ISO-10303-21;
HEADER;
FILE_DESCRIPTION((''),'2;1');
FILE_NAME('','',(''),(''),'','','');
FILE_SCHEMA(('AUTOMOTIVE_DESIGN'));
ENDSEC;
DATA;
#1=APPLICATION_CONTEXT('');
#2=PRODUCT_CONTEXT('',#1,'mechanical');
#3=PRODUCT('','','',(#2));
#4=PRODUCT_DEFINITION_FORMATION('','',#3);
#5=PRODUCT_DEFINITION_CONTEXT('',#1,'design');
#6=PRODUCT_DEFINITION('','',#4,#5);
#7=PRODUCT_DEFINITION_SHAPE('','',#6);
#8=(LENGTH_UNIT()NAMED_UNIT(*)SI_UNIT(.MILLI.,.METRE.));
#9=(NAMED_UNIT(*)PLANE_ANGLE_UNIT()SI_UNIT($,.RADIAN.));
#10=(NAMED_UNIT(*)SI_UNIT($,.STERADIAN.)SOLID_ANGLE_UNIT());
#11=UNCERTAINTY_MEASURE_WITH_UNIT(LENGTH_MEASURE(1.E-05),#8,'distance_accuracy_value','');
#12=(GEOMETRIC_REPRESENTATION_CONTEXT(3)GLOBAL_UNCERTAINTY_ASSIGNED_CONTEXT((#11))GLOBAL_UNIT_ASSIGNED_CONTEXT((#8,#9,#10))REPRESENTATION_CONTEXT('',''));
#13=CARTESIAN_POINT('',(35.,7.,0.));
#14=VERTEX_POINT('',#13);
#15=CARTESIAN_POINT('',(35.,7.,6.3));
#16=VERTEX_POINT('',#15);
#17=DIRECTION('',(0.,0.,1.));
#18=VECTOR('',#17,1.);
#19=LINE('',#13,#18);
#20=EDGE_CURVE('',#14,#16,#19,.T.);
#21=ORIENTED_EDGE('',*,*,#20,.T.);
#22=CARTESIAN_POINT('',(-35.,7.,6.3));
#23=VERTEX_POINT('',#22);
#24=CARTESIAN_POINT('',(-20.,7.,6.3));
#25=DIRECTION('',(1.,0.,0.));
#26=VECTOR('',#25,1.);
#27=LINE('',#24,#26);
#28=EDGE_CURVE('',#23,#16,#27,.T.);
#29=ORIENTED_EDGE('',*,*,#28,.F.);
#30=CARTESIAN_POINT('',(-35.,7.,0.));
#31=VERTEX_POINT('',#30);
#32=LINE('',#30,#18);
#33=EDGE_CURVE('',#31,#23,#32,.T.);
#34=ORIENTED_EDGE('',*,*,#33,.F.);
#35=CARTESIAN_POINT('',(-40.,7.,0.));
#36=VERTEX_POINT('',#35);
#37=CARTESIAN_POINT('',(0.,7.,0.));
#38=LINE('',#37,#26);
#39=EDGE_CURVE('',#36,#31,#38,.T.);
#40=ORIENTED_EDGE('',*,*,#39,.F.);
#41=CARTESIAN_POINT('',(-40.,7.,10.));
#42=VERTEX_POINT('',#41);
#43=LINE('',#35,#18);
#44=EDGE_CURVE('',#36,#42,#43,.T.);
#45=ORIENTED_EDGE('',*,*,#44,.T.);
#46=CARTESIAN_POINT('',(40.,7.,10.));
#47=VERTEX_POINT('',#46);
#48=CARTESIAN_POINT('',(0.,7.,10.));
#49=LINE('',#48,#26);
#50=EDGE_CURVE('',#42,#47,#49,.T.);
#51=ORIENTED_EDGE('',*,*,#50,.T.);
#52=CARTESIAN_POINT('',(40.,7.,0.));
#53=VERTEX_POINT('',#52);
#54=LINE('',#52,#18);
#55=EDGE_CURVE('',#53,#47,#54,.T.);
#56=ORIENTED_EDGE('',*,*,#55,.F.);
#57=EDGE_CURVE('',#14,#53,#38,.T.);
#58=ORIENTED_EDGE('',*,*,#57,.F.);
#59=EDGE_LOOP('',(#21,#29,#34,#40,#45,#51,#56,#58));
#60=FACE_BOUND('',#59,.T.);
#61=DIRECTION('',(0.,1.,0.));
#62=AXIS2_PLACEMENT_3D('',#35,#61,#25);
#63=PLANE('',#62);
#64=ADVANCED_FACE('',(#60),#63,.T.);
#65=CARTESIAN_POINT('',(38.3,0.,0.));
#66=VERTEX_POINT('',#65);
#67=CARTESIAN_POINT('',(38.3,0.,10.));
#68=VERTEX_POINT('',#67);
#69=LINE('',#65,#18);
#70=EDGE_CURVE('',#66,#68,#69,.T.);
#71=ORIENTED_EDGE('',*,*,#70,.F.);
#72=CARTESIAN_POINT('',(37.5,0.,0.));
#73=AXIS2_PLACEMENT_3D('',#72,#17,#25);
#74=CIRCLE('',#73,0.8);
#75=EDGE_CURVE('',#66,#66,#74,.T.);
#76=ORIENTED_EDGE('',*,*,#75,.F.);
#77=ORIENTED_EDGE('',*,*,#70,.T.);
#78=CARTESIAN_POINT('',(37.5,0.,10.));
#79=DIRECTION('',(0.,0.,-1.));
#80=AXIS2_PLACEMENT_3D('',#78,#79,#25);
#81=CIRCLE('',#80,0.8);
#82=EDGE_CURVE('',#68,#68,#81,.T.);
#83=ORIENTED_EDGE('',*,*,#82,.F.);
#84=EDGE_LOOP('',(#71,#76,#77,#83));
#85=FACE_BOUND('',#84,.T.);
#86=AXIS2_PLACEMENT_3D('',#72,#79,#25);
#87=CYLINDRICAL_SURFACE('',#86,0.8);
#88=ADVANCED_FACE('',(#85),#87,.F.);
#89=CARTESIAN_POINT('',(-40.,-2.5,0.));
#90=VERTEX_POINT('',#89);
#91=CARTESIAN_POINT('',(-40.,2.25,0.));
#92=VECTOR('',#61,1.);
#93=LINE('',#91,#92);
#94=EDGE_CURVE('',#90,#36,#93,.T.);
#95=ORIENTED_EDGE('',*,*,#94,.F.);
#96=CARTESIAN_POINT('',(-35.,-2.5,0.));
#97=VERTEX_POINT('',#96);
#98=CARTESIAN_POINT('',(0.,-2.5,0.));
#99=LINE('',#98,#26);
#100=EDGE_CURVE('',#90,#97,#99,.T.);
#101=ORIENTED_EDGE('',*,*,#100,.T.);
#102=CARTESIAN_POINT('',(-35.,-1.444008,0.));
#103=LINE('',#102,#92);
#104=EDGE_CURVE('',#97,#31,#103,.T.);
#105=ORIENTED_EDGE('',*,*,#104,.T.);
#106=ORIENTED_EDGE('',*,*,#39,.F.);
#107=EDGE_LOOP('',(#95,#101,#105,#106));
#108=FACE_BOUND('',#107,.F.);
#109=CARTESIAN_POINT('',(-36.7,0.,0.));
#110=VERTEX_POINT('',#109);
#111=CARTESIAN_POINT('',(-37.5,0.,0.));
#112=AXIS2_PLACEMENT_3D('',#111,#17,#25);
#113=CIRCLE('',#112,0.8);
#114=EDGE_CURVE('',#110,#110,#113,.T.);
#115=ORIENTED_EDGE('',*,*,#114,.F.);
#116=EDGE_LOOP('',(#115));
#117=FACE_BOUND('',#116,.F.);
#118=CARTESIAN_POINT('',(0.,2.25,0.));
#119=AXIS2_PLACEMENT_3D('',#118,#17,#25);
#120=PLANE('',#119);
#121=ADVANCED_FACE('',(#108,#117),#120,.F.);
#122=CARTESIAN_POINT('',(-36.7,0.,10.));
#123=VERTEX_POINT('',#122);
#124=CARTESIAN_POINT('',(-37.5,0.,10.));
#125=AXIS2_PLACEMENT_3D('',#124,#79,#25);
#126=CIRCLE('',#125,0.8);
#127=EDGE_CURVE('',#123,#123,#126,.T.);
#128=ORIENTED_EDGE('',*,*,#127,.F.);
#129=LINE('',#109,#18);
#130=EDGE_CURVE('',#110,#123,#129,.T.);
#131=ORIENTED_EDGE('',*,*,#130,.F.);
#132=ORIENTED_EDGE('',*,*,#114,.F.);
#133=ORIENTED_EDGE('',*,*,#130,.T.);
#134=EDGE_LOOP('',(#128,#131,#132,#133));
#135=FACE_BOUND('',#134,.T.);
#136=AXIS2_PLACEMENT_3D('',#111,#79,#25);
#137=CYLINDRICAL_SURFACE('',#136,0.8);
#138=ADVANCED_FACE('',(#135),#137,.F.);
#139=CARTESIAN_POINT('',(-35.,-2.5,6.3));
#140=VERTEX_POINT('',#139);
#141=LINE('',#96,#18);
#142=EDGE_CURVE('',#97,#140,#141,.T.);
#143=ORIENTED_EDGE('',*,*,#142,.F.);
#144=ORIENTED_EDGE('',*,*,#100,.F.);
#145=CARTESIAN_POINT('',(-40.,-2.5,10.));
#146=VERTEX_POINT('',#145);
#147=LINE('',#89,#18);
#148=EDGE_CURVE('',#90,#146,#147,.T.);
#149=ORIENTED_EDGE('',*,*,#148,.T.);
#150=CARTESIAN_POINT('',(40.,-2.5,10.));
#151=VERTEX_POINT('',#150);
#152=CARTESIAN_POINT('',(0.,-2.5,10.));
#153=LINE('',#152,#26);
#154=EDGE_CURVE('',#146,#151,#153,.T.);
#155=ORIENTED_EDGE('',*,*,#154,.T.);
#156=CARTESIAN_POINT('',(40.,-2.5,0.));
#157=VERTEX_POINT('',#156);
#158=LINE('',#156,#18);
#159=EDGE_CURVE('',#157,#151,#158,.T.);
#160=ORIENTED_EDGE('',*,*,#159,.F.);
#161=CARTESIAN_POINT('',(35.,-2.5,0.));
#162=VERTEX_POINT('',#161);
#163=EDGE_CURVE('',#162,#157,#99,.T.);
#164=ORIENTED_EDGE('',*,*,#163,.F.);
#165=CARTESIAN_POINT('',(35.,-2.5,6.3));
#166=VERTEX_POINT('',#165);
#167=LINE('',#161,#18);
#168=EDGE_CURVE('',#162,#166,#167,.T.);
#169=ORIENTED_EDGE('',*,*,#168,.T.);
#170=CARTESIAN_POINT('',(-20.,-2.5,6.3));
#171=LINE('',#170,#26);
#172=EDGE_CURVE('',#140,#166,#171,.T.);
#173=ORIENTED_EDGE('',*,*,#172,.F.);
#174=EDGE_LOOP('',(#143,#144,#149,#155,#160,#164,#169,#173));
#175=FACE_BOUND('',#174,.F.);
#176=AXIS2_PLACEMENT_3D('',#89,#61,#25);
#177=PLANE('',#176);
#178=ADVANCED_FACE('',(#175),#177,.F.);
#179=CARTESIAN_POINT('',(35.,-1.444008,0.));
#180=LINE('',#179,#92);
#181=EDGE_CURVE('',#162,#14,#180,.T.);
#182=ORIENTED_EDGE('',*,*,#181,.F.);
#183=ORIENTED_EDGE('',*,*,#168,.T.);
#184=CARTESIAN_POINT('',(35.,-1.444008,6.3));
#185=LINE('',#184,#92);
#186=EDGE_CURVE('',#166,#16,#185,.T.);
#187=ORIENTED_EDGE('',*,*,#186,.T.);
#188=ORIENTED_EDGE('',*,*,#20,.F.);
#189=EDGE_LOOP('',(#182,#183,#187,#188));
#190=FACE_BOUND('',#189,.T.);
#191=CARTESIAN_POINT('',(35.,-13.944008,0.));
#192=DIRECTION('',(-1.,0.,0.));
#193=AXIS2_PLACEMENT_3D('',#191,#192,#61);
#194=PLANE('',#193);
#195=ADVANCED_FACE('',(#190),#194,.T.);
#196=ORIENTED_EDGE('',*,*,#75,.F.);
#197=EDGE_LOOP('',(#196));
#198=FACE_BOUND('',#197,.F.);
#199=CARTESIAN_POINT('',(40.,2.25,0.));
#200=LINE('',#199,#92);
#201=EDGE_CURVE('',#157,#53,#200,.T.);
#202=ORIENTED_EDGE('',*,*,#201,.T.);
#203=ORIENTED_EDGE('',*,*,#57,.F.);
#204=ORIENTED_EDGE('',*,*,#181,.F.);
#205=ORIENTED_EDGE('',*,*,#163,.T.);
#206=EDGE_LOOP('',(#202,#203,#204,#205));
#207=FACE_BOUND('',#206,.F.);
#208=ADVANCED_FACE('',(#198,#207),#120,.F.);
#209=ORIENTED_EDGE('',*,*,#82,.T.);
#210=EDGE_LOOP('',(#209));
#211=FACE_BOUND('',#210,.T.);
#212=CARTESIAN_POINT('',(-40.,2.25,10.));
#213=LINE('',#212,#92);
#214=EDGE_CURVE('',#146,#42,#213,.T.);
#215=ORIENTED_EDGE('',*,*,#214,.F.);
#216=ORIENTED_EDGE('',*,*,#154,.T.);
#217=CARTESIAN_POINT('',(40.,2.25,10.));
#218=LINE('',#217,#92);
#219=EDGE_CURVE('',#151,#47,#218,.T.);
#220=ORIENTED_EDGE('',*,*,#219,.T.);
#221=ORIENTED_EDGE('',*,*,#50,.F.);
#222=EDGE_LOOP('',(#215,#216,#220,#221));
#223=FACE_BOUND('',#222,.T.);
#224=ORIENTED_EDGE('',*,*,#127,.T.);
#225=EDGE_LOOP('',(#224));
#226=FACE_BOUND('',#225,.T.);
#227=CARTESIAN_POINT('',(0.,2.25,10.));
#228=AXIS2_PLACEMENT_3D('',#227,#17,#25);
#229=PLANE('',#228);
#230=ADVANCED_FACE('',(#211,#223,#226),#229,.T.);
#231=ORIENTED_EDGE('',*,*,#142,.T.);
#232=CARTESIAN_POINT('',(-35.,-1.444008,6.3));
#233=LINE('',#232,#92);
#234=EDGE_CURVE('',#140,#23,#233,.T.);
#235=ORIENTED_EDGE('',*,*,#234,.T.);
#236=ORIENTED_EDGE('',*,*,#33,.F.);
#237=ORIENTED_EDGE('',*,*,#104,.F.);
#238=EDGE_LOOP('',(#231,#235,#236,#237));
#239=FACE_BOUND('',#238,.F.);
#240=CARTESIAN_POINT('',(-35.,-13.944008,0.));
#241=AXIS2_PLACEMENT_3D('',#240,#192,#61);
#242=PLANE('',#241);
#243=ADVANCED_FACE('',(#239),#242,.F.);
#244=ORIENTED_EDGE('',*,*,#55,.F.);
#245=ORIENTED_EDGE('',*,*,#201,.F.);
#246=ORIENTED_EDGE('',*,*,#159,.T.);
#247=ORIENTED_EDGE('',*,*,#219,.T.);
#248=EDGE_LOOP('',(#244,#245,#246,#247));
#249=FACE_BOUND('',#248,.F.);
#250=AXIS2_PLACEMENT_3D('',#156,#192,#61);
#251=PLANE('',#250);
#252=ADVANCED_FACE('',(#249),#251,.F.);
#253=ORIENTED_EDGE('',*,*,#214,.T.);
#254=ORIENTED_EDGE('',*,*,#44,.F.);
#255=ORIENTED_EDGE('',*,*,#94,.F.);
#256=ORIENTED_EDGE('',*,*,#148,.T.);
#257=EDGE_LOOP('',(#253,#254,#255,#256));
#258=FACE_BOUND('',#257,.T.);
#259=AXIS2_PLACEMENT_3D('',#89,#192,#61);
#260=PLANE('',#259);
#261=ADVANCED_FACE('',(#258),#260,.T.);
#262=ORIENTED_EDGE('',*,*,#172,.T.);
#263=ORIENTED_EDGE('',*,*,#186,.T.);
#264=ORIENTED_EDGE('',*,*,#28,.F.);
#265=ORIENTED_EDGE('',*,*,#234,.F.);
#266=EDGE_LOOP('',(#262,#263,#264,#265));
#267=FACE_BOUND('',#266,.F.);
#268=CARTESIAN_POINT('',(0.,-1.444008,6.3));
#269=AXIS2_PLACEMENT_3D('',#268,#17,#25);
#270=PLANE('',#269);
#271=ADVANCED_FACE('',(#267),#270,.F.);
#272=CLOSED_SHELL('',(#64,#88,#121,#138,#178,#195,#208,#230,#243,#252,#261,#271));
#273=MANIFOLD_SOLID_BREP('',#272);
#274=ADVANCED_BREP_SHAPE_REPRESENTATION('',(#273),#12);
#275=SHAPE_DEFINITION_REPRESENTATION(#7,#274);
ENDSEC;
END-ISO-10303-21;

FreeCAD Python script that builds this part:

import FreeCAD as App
import Part
import Sketcher

doc = App.newDocument("Part")
body = doc.addObject("PartDesign::Body", "Body")

sketch1 = body.newObject("Sketcher::SketchObject", "Sketch")
sketch1.AttachmentSupport = (doc.getObject("XY_Plane"), [""])
sketch1.MapMode = "FlatFace"
sketch1.addGeometry(Part.LineSegment(App.Vector(-40, 7, 0), App.Vector(-40, -2, 0)), False)
sketch1.addGeometry(Part.LineSegment(App.Vector(-40, -2, 0), App.Vector(40, -2, 0)), False)
sketch1.addGeometry(Part.LineSegment(App.Vector(40, -2, 0), App.Vector(40, 7, 0)), False)
sketch1.addGeometry(Part.LineSegment(App.Vector(40, 7, 0), App.Vector(-40, 7, 0)), False)
sketch1.addConstraint(Sketcher.Constraint("Coincident", 0, 2, 1, 1))
sketch1.addConstraint(Sketcher.Constraint("Coincident", 1, 2, 2, 1))
sketch1.addConstraint(Sketcher.Constraint("Coincident", 2, 2, 3, 1))
sketch1.addConstraint(Sketcher.Constraint("Coincident", 3, 2, 0, 1))
sketch1.addConstraint(Sketcher.Constraint("Vertical", 0))
sketch1.addConstraint(Sketcher.Constraint("Horizontal", 1))
sketch1.addConstraint(Sketcher.Constraint("Vertical", 2))
sketch1.addConstraint(Sketcher.Constraint("Horizontal", 3))
sketch1.addConstraint(Sketcher.Constraint("DistanceX", 1, 1, 1, 2, 80.0))
sketch1.addConstraint(Sketcher.Constraint("DistanceY", 0, 2, 0, 1, 9.5))
sketch1.addConstraint(Sketcher.Constraint("DistanceX", 0, 2, -1, 1, 40.0))
sketch1.addConstraint(Sketcher.Constraint("DistanceY", -1, 1, 2, 2, 7.0))
pad1 = body.newObject("PartDesign::Pad", "Pad")
pad1.Profile = sketch1
pad1.Length = 10

sketch2 = body.newObject("Sketcher::SketchObject", "Sketch001")
sketch2.AttachmentSupport = (doc.getObject("XY_Plane"), [""])
sketch2.MapMode = "FlatFace"
sketch2.addGeometry(Part.LineSegment(App.Vector(-35, 11, 0), App.Vector(-35, -14, 0)), False)
sketch2.addGeometry(Part.LineSegment(App.Vector(-35, -14, 0), App.Vector(35, -14, 0)), False)
sketch2.addGeometry(Part.LineSegment(App.Vector(35, -14, 0), App.Vector(35, 11, 0)), False)
sketch2.addGeometry(Part.LineSegment(App.Vector(35, 11, 0), App.Vector(-35, 11, 0)), False)
sketch2.addConstraint(Sketcher.Constraint("Coincident", 0, 2, 1, 1))
sketch2.addConstraint(Sketcher.Constraint("Coincident", 1, 2, 2, 1))
sketch2.addConstraint(Sketcher.Constraint("Coincident", 2, 2, 3, 1))
sketch2.addConstraint(Sketcher.Constraint("Coincident", 3, 2, 0, 1))
sketch2.addConstraint(Sketcher.Constraint("Vertical", 0))
sketch2.addConstraint(Sketcher.Constraint("Horizontal", 1))
sketch2.addConstraint(Sketcher.Constraint("Vertical", 2))
sketch2.addConstraint(Sketcher.Constraint("Horizontal", 3))
sketch2.addConstraint(Sketcher.Constraint("DistanceX", 1, 1, 1, 2, 70.0))
sketch2.addConstraint(Sketcher.Constraint("DistanceY", 0, 2, 0, 1, 25.0))
sketch2.addConstraint(Sketcher.Constraint("DistanceX", 0, 2, -1, 1, 35.0))
sketch2.addConstraint(Sketcher.Constraint("DistanceY", 0, 2, -1, 1, 13.944008))
pocket1 = body.newObject("PartDesign::Pocket", "Pocket")
pocket1.Profile = sketch2
pocket1.Length = 6.3
pocket1.Reversed = True

sketch3 = body.newObject("Sketcher::SketchObject", "Sketch002")
sketch3.AttachmentSupport = (doc.getObject("XY_Plane"), [""])
sketch3.MapMode = "FlatFace"
sketch3.addGeometry(Part.Circle(App.Vector(37.5, 0, 0), App.Vector(0, 0, 1), 0.8), False)
sketch3.addGeometry(Part.Circle(App.Vector(-37.5, 0, 0), App.Vector(0, 0, 1), 0.8), False)
sketch3.addConstraint(Sketcher.Constraint("Equal", 0, 1))
sketch3.addConstraint(Sketcher.Constraint("Symmetric", 0, 3, 1, 3, -1, 1))
sketch3.addConstraint(Sketcher.Constraint("PointOnObject", 0, 3, -1))
sketch3.addConstraint(Sketcher.Constraint("Diameter", 0, 1.6))
sketch3.addConstraint(Sketcher.Constraint("DistanceX", 1, 3, 0, 3, 75.0))
pocket2 = body.newObject("PartDesign::Pocket", "Pocket001")
pocket2.Profile = sketch3
pocket2.Type = "ThroughAll"
pocket2.Reversed = True

doc.recompute()
